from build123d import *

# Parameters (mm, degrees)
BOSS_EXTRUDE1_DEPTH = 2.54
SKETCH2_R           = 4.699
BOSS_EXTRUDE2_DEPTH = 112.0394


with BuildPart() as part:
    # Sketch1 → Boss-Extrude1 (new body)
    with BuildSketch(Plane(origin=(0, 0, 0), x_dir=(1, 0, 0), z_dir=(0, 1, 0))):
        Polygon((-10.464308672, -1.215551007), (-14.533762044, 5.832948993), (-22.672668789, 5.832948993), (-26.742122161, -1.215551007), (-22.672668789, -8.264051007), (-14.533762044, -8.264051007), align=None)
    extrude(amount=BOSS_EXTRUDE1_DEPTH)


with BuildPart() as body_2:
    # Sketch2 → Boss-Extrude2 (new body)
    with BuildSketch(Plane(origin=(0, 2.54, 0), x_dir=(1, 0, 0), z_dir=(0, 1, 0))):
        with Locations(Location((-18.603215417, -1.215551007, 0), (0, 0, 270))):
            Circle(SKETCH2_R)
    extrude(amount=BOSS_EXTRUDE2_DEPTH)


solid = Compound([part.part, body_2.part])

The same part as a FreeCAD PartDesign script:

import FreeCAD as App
import Part
import Sketcher

V = App.Vector
Q = App.Units.Quantity

doc = App.newDocument("Part")
body = doc.addObject("PartDesign::Body", "Body")

# Sketch on XZ plane
sketch1 = body.newObject("Sketcher::SketchObject", "Sketch")
sketch1.AttachmentSupport = (doc.getObject("XZ_Plane"), [""])
sketch1.MapMode = "FlatFace"
sketch1.addGeometry(Part.LineSegment(V(-10.464309, 1.215551, 0), V(-14.533762, -5.832949, 0)), False)
sketch1.addGeometry(Part.LineSegment(V(-14.533762, -5.832949, 0), V(-22.672669, -5.832949, 0)), False)
sketch1.addGeometry(Part.LineSegment(V(-22.672669, -5.832949, 0), V(-26.742122, 1.215551, 0)), False)
sketch1.addGeometry(Part.LineSegment(V(-26.742122, 1.215551, 0), V(-22.672669, 8.264051, 0)), False)
sketch1.addGeometry(Part.LineSegment(V(-22.672669, 8.264051, 0), V(-14.533762, 8.264051, 0)), False)
sketch1.addGeometry(Part.LineSegment(V(-14.533762, 8.264051, 0), V(-10.464309, 1.215551, 0)), False)
sketch1.addConstraint(Sketcher.Constraint("Coincident", 0, 2, 1, 1))
sketch1.addConstraint(Sketcher.Constraint("Coincident", 1, 2, 2, 1))
sketch1.addConstraint(Sketcher.Constraint("Coincident", 2, 2, 3, 1))
sketch1.addConstraint(Sketcher.Constraint("Coincident", 3, 2, 4, 1))
sketch1.addConstraint(Sketcher.Constraint("Coincident", 4, 2, 5, 1))
sketch1.addConstraint(Sketcher.Constraint("Coincident", 5, 2, 0, 1))
sketch1.addConstraint(Sketcher.Constraint("Horizontal", 1))
sketch1.addConstraint(Sketcher.Constraint("Horizontal", 4))
sketch1.addConstraint(Sketcher.Constraint("Parallel", 0, 3))
sketch1.addConstraint(Sketcher.Constraint("Parallel", 2, 5))
sketch1.addConstraint(Sketcher.Constraint("Horizontal", 2, 2, 5, 2))
sketch1.addConstraint(Sketcher.Constraint("Vertical", 1, 2, 3, 2))
sketch1.addConstraint(Sketcher.Constraint("Vertical", 0, 2, 4, 2))
sketch1.addConstraint(Sketcher.Constraint("Angle", 0, Q("-120 deg")))
sketch1.addConstraint(Sketcher.Constraint("DistanceY", 1, 2, 3, 2, Q("0.555 in")))
sketch1.addConstraint(Sketcher.Constraint("DistanceX", 1, 2, 1, 1, Q("8.138907 mm")))
sketch1.addConstraint(Sketcher.Constraint("DistanceY", 0, 2, -1, 1, Q("5.832949 mm")))
sketch1.addConstraint(Sketcher.Constraint("DistanceX", 1, 2, -1, 1, Q("22.672669 mm")))
pad1 = body.newObject("PartDesign::Pad", "Pad")
pad1.Profile = sketch1
pad1.Length = Q("0.1 in")
pad1.Reversed = True
body2 = doc.addObject("PartDesign::Body", "Body001")

# Sketch on XZ plane
sketch2 = body2.newObject("Sketcher::SketchObject", "Sketch001")
sketch2.AttachmentSupport = (doc.getObject("XZ_Plane001"), [""])
sketch2.MapMode = "FlatFace"
sketch2.AttachmentOffset = App.Placement(V(0, 0, -0.1 * 25.4), App.Rotation())
sketch2.addGeometry(Part.Circle(V(-18.603215, 1.215551, 0), V(0, 0, 1), 4.699), False)
sketch2.addConstraint(Sketcher.Constraint("Diameter", 0, Q("0.37 in")))
sketch2.addConstraint(Sketcher.Constraint("DistanceY", -1, 1, 0, 3, Q("1.215551 mm")))
sketch2.addConstraint(Sketcher.Constraint("DistanceX", 0, 3, -1, 1, Q("18.603215 mm")))
pad2 = body2.newObject("PartDesign::Pad", "Pad001")
pad2.Profile = sketch2
pad2.Length = Q("4.411 in")
pad2.Reversed = True

doc.recompute()
